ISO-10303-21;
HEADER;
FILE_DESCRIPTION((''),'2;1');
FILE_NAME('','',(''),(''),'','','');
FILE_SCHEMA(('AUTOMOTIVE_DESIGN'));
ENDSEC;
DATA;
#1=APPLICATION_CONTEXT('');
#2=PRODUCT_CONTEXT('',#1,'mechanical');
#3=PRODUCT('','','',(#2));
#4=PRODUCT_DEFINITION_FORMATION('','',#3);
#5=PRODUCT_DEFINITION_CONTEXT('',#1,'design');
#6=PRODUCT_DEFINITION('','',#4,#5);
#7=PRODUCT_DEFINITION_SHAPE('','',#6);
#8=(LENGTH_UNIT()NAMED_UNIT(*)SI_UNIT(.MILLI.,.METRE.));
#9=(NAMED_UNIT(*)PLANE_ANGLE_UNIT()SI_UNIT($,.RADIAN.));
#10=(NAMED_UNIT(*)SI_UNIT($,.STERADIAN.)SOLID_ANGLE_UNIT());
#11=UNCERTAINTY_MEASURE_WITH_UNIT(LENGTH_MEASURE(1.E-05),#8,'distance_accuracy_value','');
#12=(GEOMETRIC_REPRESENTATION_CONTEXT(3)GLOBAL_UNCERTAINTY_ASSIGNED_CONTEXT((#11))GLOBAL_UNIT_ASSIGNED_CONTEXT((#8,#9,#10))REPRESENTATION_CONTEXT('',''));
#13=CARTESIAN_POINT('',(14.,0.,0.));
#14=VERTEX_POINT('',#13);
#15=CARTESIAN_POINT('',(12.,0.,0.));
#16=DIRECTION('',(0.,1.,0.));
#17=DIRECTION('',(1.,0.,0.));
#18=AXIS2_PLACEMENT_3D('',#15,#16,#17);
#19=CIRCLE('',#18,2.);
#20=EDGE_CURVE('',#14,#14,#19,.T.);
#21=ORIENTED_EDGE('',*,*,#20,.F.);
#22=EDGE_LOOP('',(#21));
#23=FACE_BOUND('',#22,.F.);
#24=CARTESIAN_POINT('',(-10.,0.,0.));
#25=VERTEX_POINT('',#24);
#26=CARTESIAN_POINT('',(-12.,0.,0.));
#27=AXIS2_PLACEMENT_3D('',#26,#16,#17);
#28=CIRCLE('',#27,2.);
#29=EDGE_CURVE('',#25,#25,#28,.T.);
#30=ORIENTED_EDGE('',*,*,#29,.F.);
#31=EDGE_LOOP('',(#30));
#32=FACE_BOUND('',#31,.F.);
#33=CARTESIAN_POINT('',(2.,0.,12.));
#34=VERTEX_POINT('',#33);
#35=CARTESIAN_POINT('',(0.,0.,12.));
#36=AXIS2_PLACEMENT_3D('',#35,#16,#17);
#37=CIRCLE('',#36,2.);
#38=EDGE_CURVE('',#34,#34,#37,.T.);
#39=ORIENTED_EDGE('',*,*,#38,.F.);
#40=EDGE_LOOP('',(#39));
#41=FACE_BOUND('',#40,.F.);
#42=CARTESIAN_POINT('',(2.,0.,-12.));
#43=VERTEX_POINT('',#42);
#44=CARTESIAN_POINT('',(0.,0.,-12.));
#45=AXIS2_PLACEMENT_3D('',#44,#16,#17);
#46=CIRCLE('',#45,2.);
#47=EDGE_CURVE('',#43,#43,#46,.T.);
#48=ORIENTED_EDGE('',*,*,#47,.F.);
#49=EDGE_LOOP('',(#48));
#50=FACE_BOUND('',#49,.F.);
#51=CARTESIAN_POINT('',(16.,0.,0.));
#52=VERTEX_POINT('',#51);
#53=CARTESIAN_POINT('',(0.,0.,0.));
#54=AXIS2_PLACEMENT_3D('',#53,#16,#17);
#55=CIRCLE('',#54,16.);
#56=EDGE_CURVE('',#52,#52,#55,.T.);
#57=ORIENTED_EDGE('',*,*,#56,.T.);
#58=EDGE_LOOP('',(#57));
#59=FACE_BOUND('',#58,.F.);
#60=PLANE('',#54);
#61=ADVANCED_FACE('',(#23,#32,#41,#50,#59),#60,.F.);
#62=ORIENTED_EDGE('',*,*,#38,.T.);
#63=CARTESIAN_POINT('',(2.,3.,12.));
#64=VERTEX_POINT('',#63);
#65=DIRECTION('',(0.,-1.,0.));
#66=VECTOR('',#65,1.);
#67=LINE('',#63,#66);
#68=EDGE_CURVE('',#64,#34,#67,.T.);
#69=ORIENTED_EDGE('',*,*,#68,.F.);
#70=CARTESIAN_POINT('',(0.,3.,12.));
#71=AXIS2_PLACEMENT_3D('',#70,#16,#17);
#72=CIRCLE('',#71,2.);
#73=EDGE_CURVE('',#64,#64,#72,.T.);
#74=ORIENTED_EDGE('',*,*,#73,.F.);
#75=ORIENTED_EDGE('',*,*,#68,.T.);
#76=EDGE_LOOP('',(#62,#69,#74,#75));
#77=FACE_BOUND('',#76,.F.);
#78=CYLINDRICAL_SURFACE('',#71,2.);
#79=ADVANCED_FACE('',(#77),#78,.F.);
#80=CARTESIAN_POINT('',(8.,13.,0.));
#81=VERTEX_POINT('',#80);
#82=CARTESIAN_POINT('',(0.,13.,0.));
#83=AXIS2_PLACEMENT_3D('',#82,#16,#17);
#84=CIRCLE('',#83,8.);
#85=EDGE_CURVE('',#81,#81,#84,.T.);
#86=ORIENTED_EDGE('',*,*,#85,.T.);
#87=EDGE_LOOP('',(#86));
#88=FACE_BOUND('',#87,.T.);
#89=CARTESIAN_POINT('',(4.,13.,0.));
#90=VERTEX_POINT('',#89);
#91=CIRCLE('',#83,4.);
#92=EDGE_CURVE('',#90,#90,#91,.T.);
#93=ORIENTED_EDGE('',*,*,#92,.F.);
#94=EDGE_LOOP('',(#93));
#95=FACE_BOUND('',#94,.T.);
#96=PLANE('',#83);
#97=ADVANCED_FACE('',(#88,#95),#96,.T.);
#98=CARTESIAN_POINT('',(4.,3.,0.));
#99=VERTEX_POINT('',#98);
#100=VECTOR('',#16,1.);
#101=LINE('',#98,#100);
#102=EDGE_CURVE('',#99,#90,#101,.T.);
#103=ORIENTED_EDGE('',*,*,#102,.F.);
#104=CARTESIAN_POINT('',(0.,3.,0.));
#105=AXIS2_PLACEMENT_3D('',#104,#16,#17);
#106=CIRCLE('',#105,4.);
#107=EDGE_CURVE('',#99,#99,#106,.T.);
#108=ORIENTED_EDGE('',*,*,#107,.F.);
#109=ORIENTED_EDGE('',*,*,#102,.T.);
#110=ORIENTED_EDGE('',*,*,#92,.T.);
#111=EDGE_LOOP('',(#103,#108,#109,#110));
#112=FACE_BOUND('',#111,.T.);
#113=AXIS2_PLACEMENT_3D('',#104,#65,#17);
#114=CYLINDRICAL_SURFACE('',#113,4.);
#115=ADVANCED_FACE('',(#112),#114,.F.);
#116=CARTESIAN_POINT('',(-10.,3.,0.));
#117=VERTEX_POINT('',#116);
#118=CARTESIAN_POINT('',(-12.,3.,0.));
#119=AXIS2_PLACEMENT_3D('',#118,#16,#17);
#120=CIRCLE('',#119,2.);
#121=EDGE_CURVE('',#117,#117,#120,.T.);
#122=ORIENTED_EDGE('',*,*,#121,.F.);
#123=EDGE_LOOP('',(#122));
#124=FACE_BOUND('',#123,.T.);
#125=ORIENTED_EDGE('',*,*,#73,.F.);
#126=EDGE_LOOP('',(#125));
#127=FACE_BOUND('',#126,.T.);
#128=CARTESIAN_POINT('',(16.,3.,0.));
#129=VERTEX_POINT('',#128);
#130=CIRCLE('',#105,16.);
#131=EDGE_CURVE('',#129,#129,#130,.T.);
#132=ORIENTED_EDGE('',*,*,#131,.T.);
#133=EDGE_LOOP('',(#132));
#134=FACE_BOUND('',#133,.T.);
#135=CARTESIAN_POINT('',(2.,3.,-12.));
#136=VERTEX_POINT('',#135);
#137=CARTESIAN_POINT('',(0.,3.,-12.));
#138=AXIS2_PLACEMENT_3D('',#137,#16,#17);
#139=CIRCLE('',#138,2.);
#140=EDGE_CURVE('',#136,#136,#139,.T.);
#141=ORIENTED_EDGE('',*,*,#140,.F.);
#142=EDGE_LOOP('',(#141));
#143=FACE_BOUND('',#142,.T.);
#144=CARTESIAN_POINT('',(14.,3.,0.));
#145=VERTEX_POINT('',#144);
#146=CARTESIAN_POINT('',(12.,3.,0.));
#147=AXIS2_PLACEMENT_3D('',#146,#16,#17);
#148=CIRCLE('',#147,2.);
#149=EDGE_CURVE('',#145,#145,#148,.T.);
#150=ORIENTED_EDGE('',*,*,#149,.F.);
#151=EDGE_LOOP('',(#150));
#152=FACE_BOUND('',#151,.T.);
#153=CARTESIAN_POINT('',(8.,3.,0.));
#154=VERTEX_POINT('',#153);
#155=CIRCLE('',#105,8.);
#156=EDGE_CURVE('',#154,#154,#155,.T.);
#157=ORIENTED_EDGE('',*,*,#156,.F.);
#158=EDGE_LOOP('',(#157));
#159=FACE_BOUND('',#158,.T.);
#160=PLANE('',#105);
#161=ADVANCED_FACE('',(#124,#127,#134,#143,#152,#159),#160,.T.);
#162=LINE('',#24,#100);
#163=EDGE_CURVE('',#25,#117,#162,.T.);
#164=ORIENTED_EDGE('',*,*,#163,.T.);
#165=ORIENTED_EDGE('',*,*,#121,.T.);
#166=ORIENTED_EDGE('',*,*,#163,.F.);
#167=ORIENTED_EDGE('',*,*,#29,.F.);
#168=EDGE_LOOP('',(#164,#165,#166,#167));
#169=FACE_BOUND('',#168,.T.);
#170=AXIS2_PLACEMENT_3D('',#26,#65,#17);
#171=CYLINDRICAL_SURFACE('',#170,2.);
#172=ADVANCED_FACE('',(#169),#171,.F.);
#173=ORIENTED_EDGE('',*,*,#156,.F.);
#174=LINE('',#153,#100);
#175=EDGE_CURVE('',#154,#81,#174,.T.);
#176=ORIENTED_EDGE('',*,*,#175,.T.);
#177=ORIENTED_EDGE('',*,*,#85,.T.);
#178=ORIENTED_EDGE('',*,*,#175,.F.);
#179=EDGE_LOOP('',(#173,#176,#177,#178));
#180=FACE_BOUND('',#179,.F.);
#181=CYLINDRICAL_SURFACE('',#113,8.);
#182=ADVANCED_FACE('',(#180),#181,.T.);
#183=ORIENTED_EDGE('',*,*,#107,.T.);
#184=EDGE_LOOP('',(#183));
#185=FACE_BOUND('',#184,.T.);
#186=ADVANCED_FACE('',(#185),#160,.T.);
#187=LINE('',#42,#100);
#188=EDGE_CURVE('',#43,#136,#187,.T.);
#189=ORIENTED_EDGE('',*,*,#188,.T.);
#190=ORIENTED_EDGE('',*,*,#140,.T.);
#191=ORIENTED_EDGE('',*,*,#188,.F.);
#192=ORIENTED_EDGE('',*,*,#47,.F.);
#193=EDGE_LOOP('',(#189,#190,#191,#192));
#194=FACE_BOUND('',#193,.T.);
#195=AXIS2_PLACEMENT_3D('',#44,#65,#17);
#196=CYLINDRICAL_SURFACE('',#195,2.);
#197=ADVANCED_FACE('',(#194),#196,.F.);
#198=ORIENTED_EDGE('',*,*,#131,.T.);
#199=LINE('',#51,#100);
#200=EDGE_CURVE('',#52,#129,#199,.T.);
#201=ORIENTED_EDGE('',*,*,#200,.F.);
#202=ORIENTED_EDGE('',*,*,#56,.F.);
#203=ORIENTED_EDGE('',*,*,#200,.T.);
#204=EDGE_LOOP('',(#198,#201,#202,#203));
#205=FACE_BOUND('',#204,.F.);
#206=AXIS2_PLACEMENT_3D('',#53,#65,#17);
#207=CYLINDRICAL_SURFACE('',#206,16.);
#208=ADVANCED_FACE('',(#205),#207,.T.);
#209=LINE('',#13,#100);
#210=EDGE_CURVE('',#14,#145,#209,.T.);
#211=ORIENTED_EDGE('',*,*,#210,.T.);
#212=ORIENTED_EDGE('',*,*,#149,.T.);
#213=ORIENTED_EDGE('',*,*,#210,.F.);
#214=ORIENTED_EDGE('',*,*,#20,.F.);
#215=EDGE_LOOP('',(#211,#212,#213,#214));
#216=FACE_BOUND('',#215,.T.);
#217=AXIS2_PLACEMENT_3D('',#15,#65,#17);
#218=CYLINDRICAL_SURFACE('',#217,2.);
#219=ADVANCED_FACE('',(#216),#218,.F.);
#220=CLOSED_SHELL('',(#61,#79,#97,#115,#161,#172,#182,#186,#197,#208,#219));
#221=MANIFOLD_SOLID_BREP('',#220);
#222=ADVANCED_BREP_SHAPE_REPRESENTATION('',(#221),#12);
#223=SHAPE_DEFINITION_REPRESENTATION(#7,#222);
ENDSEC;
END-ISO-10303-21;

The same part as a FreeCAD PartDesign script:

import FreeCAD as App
import Part
import Sketcher

doc = App.newDocument("Part")
body = doc.addObject("PartDesign::Body", "Body")

sketch1 = doc.addObject("Sketcher::SketchObject", "Sketch")
body.addObject(sketch1)
sketch1.AttachmentSupport = (doc.XZ_Plane, [""])
sketch1.MapMode = "FlatFace"
sketch1.addGeometry([
    Part.Circle(App.Vector(0, 0, 0), App.Vector(0, 0, 1), 16),
    Part.Circle(App.Vector(-12, 0, 0), App.Vector(0, 0, 1), 2),
    Part.Circle(App.Vector(12, 0, 0), App.Vector(0, 0, 1), 2),
    Part.Circle(App.Vector(0, -12, 0), App.Vector(0, 0, 1), 2),
], False)
sketch1.addConstraint([
    Sketcher.Constraint("Coincident", 0, 3, -1, 1),
    Sketcher.Constraint("Equal", 1, 2),
    Sketcher.Constraint("Equal", 2, 3),
    Sketcher.Constraint("Symmetric", 1, 3, 2, 3, -1, 1),
    Sketcher.Constraint("PointOnObject", 1, 3, -1),
    Sketcher.Constraint("PointOnObject", 3, 3, -2),
    Sketcher.Constraint("Diameter", 0, 32.0),
    Sketcher.Constraint("Diameter", 1, 4.0),
    Sketcher.Constraint("DistanceX", 1, 3, -1, 1, 12.0),
    Sketcher.Constraint("DistanceY", 3, 3, -1, 1, 12.0),
])
pad1 = doc.addObject("PartDesign::Pad", "Pad")
body.addObject(pad1)
pad1.Profile = sketch1
pad1.Length = 3
pad1.Reversed = True

sketch2 = doc.addObject("Sketcher::SketchObject", "Sketch001")
body.addObject(sketch2)
sketch2.AttachmentSupport = (doc.XZ_Plane, [""])
sketch2.MapMode = "FlatFace"
sketch2.AttachmentOffset = App.Placement(App.Vector(0, 0, -3), App.Rotation())
sketch2.addGeometry([
    Part.Circle(App.Vector(0, 0, 0), App.Vector(0, 0, 1), 8),
    Part.Circle(App.Vector(0, 0, 0), App.Vector(0, 0, 1), 4),
], False)
sketch2.addConstraint([
    Sketcher.Constraint("Coincident", 0, 3, -1, 1),
    Sketcher.Constraint("Coincident", 1, 3, -1, 1),
    Sketcher.Constraint("Diameter", 0, 16.0),
    Sketcher.Constraint("Diameter", 1, 8.0),
])
pad2 = doc.addObject("PartDesign::Pad", "Pad001")
body.addObject(pad2)
pad2.Profile = sketch2
pad2.Length = 10
pad2.Reversed = True

sketch3 = doc.addObject("Sketcher::SketchObject", "Sketch002")
body.addObject(sketch3)
sketch3.AttachmentSupport = (doc.XZ_Plane, [""])
sketch3.MapMode = "FlatFace"
sketch3.AttachmentOffset = App.Placement(App.Vector(0, 0, -3), App.Rotation())
sketch3.addGeometry(Part.Circle(App.Vector(0, 12, 0), App.Vector(0, 0, 1), 2), False)
sketch3.addConstraint([
    Sketcher.Constraint("PointOnObject", 0, 3, -2),
    Sketcher.Constraint("Diameter", 0, 4.0),
    Sketcher.Constraint("DistanceY", -1, 1, 0, 3, 12.0),
])
pocket1 = doc.addObject("PartDesign::Pocket", "Pocket")
body.addObject(pocket1)
pocket1.Profile = sketch3
pocket1.Length = 10
pocket1.Reversed = True

doc.recompute()
